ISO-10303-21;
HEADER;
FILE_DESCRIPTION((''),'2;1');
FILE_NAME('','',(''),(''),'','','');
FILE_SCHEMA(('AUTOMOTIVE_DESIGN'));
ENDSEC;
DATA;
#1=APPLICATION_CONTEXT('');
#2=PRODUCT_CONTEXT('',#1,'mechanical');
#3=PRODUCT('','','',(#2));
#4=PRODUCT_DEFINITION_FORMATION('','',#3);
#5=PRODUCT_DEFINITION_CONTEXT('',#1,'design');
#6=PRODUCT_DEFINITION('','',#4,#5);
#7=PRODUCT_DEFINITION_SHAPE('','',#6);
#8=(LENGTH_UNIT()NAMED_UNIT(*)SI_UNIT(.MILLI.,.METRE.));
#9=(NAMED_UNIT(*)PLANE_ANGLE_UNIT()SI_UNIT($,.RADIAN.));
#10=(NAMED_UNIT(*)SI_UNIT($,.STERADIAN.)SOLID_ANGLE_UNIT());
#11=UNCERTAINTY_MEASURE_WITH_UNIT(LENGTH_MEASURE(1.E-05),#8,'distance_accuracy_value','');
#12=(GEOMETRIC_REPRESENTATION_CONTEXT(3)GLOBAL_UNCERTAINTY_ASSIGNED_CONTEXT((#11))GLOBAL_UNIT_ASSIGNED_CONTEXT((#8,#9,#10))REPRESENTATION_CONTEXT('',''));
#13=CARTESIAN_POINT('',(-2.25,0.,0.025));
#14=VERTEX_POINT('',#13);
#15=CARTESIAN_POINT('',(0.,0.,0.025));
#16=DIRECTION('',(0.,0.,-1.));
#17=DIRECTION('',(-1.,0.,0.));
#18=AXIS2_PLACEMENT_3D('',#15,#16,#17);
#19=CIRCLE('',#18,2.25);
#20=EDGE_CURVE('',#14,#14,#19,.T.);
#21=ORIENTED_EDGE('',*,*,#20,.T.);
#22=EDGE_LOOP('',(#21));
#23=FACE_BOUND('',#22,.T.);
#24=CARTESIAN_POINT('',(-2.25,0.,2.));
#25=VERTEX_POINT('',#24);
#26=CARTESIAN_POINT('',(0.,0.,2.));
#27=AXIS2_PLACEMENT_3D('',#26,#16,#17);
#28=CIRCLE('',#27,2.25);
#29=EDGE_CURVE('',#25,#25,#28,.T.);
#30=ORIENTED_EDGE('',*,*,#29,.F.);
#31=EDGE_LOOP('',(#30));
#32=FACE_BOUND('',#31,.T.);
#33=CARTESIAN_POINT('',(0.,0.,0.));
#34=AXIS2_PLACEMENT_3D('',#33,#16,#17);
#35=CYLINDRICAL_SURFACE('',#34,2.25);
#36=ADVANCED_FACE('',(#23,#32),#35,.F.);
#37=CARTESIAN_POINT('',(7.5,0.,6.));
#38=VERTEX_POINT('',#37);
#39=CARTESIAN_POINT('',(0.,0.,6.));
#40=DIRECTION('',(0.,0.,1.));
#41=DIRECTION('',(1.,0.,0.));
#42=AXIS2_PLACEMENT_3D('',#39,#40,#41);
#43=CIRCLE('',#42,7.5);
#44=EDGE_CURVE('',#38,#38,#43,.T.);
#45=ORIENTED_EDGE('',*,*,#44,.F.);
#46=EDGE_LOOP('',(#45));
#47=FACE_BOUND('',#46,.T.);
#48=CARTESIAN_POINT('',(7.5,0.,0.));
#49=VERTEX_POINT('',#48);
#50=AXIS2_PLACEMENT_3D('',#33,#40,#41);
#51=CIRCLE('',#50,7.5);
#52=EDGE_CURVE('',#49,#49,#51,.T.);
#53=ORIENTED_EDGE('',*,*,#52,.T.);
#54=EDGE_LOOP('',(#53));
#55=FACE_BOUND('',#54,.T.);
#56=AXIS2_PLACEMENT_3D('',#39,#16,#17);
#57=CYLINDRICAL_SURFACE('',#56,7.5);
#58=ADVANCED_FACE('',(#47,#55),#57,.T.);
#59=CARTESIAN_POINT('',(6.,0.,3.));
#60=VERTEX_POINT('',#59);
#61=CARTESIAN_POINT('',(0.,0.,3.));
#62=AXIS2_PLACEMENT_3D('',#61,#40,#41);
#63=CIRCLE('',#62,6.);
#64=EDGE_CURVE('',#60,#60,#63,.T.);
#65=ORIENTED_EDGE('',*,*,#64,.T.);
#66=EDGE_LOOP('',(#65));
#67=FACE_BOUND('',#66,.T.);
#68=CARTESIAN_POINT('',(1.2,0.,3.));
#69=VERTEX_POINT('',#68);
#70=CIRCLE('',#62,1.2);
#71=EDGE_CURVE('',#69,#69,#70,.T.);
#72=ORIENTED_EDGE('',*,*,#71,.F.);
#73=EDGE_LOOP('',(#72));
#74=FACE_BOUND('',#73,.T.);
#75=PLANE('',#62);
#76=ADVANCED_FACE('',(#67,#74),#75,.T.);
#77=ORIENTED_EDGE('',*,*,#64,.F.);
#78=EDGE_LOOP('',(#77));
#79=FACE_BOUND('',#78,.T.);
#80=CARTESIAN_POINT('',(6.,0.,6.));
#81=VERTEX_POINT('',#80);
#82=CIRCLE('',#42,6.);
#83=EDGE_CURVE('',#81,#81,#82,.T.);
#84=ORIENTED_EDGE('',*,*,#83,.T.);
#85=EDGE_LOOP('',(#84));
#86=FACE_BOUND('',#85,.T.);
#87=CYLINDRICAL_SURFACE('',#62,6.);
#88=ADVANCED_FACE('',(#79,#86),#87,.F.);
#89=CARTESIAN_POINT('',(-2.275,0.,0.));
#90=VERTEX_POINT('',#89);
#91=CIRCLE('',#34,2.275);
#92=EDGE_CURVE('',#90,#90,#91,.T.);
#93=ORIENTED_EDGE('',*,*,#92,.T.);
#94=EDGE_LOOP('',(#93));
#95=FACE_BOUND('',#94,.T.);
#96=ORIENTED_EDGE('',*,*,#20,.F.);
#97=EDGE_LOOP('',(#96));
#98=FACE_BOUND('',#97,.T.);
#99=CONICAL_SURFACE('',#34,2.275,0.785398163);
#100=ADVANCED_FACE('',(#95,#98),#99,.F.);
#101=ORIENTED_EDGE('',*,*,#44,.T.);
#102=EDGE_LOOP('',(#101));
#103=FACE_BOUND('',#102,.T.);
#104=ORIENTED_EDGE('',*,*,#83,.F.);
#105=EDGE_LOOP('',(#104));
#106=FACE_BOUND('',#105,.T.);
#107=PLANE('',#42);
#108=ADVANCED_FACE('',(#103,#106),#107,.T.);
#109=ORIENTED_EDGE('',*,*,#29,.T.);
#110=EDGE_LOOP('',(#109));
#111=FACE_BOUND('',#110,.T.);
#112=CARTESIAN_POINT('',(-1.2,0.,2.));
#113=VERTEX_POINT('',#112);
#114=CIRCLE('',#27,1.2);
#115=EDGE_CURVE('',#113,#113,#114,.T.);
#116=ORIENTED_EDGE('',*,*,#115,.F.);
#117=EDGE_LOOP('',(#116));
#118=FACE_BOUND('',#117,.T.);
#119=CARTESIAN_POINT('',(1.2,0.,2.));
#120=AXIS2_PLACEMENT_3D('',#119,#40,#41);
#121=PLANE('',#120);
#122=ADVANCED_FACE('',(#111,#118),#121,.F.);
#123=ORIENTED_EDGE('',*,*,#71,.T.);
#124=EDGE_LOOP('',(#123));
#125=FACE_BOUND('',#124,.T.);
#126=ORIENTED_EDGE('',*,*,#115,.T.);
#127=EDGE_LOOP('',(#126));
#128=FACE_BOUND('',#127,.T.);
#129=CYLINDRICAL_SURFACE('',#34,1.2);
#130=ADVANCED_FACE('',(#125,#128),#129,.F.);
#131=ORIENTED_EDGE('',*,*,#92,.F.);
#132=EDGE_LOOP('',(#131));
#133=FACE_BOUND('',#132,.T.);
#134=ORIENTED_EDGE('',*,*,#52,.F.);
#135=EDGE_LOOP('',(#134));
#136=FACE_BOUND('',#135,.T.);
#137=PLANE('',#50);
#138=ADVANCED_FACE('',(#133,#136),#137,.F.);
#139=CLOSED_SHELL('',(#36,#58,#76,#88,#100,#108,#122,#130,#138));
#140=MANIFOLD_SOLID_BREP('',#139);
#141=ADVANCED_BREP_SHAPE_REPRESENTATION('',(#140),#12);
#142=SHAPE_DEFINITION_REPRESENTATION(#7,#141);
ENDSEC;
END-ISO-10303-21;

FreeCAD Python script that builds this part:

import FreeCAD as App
import Part
import Sketcher
from FreeCAD import Vector
Q = App.Units.Quantity

doc = App.newDocument("Part")
body = doc.addObject("PartDesign::Body", "Body")

# Sketch on XY plane
sketch1 = doc.addObject("Sketcher::SketchObject", "Sketch")
body.addObject(sketch1)
sketch1.AttachmentSupport = (doc.XY_Plane, [""])
sketch1.MapMode = "FlatFace"
sketch1.addGeometry(Part.Circle(Vector(0, 0, 0), Vector(0, 0, 1), 7.5), False)
sketch1.addConstraint([
    Sketcher.Constraint("Coincident", 0, 3, -1, 1),
    Sketcher.Constraint("Diameter", 0, Q("15 mm")),
])
pad1 = doc.addObject("PartDesign::Pad", "Pad")
body.addObject(pad1)
pad1.Profile = sketch1
pad1.Length = 6

# Sketch on XY plane
sketch2 = doc.addObject("Sketcher::SketchObject", "Sketch001")
body.addObject(sketch2)
sketch2.AttachmentSupport = (doc.XY_Plane, [""])
sketch2.MapMode = "FlatFace"
sketch2.AttachmentOffset = App.Placement(Vector(0, 0, 6), App.Rotation())
sketch2.addGeometry(Part.Circle(Vector(0, 0, 0), Vector(0, 0, 1), 6), False)
sketch2.addConstraint([
    Sketcher.Constraint("Coincident", 0, 3, -1, 1),
    Sketcher.Constraint("Diameter", 0, Q("12 mm")),
])
pocket1 = doc.addObject("PartDesign::Pocket", "Pocket")
body.addObject(pocket1)
pocket1.Profile = sketch2
pocket1.Length = 3

# Sketch on YZ plane
sketch3 = doc.addObject("Sketcher::SketchObject", "Sketch002")
body.addObject(sketch3)
sketch3.AttachmentSupport = (doc.YZ_Plane, [""])
sketch3.MapMode = "FlatFace"
sketch3.addGeometry([
    Part.LineSegment(Vector(0, 5.721033, 0), Vector(0, 0, 0)),  # 0
    Part.LineSegment(Vector(0, 0, 0), Vector(2.275, 0, 0)),  # 1
    Part.LineSegment(Vector(2.275, 0, 0), Vector(2.25, 0.025, 0)),  # 2
    Part.LineSegment(Vector(2.25, 0.025, 0), Vector(2.25, 2, 0)),  # 3
    Part.LineSegment(Vector(2.25, 2, 0), Vector(1.2, 2, 0)),  # 4
    Part.LineSegment(Vector(1.2, 2, 0), Vector(1.2, 5, 0)),  # 5
    Part.LineSegment(Vector(1.2, 5, 0), Vector(0, 5.721033, 0)),  # 6
], False)
sketch3.addConstraint([
    Sketcher.Constraint("Coincident", 0, 2, 1, 1),
    Sketcher.Constraint("Coincident", 1, 2, 2, 1),
    Sketcher.Constraint("Coincident", 2, 2, 3, 1),
    Sketcher.Constraint("Coincident", 3, 2, 4, 1),
    Sketcher.Constraint("Coincident", 4, 2, 5, 1),
    Sketcher.Constraint("Coincident", 5, 2, 6, 1),
    Sketcher.Constraint("Coincident", 6, 2, 0, 1),
    Sketcher.Constraint("Vertical", 0),
    Sketcher.Constraint("Horizontal", 1),
    Sketcher.Constraint("Vertical", 3),
    Sketcher.Constraint("Horizontal", 4),
    Sketcher.Constraint("Vertical", 5),
    Sketcher.Constraint("Coincident", 0, 2, -1, 1),
    Sketcher.Constraint("DistanceY", 5, 1, 5, 2, Q("3 mm")),
    Sketcher.Constraint("Angle", 2, Q("135 deg")),
    Sketcher.Constraint("Angle", 6, Q("149 deg")),
    Sketcher.Constraint("DistanceY", -1, 1, 3, 2, Q("2 mm")),
    Sketcher.Constraint("DistanceX", 4, 2, 4, 1, Q("1.05 mm")),
    Sketcher.Constraint("DistanceX", -1, 1, 4, 2, Q("1.2 mm")),
    Sketcher.Constraint("DistanceX", 1, 1, 1, 2, Q("2.275 mm")),
])
groove = doc.addObject("PartDesign::Groove", "Groove")
body.addObject(groove)
groove.Profile = sketch3
groove.ReferenceAxis = (sketch3, ["V_Axis"])
groove.Angle = 360

doc.recompute()
